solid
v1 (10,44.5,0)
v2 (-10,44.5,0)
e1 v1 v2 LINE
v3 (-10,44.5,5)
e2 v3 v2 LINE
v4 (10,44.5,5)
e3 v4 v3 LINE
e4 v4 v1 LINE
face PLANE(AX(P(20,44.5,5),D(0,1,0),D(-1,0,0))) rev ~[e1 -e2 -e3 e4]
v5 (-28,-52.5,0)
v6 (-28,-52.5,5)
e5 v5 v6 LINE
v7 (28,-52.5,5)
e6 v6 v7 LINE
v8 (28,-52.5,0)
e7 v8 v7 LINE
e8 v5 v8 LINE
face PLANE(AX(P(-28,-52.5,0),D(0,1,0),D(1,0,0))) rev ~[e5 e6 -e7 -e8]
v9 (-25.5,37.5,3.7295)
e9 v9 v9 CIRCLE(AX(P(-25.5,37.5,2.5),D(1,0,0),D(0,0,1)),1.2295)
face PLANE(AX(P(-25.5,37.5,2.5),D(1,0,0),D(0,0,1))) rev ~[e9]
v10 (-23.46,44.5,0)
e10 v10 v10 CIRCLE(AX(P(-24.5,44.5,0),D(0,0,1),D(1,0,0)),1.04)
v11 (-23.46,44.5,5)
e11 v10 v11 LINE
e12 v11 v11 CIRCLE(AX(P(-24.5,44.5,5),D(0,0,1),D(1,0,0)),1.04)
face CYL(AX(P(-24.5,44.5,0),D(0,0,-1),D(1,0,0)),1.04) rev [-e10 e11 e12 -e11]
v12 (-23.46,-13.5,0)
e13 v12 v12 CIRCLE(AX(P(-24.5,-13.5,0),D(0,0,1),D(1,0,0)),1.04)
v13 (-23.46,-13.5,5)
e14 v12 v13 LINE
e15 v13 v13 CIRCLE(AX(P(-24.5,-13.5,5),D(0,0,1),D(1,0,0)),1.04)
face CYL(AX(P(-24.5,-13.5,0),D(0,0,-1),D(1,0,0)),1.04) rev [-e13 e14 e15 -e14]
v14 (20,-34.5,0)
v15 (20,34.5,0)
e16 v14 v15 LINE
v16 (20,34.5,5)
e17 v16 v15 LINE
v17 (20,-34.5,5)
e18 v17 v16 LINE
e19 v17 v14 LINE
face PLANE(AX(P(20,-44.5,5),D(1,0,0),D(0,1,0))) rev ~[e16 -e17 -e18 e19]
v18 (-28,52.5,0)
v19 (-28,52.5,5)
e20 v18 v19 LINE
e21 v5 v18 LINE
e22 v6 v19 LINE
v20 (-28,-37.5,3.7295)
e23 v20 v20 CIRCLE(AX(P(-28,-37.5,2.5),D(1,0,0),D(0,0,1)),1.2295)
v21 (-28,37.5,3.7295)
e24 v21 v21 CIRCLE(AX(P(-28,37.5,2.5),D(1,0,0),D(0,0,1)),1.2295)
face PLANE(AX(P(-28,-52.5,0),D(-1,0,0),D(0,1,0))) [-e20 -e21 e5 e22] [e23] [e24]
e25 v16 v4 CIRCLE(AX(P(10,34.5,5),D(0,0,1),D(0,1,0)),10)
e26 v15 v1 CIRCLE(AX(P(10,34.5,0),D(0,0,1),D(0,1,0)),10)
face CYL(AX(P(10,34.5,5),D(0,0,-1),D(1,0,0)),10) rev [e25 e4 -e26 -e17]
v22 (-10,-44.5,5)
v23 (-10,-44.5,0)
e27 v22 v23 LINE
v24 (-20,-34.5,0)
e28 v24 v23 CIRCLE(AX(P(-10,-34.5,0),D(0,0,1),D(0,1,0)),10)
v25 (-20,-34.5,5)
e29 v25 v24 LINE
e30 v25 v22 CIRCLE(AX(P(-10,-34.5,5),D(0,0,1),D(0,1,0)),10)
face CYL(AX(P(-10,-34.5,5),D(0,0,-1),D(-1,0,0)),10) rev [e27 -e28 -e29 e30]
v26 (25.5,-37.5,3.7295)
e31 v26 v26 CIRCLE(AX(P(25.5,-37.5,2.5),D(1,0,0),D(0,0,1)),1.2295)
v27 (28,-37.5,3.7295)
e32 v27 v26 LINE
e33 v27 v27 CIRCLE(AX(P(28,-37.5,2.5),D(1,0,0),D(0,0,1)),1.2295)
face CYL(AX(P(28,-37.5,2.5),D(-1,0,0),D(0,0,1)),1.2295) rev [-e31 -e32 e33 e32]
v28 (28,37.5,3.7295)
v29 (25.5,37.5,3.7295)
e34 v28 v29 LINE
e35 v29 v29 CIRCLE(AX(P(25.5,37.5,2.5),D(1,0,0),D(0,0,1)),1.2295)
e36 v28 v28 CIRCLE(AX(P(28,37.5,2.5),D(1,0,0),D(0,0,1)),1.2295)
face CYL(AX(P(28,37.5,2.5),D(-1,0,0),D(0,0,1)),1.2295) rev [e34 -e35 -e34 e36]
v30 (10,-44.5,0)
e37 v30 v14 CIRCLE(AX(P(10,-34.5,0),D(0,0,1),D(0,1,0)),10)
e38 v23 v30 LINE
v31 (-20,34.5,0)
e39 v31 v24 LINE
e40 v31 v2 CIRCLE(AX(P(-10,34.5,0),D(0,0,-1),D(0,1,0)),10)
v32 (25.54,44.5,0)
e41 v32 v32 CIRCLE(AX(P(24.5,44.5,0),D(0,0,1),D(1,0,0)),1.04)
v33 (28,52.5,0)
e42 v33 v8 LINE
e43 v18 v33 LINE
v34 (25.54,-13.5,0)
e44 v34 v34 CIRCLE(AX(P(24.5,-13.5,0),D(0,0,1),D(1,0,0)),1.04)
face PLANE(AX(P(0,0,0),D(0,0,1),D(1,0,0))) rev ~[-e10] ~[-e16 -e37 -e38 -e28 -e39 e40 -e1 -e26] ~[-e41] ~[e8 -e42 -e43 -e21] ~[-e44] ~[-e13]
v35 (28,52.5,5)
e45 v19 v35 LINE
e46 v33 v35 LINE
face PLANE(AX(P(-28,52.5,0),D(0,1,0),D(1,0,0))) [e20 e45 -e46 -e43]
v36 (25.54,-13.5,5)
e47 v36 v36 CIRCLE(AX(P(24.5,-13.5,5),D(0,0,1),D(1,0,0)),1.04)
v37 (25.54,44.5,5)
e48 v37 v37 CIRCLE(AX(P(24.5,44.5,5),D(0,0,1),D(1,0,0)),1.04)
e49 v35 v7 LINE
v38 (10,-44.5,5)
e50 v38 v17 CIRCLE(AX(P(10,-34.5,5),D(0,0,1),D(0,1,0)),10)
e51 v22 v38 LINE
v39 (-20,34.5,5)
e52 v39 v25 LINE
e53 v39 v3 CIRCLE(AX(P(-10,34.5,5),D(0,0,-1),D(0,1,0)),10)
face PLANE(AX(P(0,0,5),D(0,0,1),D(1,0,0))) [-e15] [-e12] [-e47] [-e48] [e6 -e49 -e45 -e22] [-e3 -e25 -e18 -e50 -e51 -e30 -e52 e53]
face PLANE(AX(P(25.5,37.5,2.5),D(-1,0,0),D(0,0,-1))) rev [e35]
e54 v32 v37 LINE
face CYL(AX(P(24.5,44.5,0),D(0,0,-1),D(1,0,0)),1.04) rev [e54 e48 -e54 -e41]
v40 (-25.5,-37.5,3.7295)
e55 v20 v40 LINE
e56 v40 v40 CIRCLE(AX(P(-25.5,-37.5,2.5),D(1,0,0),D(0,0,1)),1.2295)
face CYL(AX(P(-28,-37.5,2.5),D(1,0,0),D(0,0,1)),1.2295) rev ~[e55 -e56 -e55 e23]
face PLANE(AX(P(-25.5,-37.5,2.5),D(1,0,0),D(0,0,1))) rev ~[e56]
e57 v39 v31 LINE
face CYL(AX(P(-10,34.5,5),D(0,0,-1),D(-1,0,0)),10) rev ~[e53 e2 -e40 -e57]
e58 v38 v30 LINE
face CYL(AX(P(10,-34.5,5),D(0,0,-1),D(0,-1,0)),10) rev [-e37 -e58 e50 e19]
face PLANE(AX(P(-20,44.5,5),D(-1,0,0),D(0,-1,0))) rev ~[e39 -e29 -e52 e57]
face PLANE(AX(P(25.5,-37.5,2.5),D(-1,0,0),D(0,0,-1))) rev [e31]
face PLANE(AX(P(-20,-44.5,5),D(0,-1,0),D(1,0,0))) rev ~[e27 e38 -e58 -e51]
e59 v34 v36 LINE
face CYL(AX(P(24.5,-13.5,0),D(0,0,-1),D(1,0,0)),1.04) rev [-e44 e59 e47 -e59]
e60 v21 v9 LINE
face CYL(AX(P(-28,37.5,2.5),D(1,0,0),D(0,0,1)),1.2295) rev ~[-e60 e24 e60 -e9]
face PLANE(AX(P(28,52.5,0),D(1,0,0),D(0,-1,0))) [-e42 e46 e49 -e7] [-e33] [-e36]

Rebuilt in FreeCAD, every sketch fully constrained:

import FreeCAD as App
import Part
import Sketcher

V = App.Vector
Q = App.Units.Quantity


def edges_at(feature, points):
    """Names of the edges that pass closest to the given points."""
    edges = feature.Shape.Edges
    near = lambda p: min(range(len(edges)), key=lambda i: edges[i].distToShape(Part.Vertex(*p))[0])
    return sorted({f"Edge{near(p) + 1}" for p in points})

doc = App.newDocument("Part")
body = doc.addObject("PartDesign::Body", "Body")

sketch1 = body.newObject("Sketcher::SketchObject", "Sketch")
sketch1.AttachmentSupport = (doc.getObject("XY_Plane"), [""])
sketch1.MapMode = "FlatFace"
sketch1.addGeometry([
    Part.LineSegment(V(-28, 52.5, 0), V(-28, -52.5, 0)),
    Part.LineSegment(V(-28, -52.5, 0), V(28, -52.5, 0)),
    Part.LineSegment(V(28, -52.5, 0), V(28, 52.5, 0)),
    Part.LineSegment(V(28, 52.5, 0), V(-28, 52.5, 0)),
    Part.Circle(V(-24.5, -13.5, 0), V(0, 0, 1), 1),
    Part.Circle(V(24.5, -13.5, 0), V(0, 0, 1), 1),
    Part.Circle(V(-24.5, 44.5, 0), V(0, 0, 1), 1),
    Part.Circle(V(24.5, 44.5, 0), V(0, 0, 1), 1),
], False)
sketch1.addConstraint([
    Sketcher.Constraint("Coincident", 0, 2, 1, 1),
    Sketcher.Constraint("Coincident", 1, 2, 2, 1),
    Sketcher.Constraint("Coincident", 2, 2, 3, 1),
    Sketcher.Constraint("Coincident", 3, 2, 0, 1),
    Sketcher.Constraint("Vertical", 0),
    Sketcher.Constraint("Horizontal", 1),
    Sketcher.Constraint("Vertical", 2),
    Sketcher.Constraint("Horizontal", 3),
    Sketcher.Constraint("Equal", 4, 5),
    Sketcher.Constraint("Equal", 5, 6),
    Sketcher.Constraint("Equal", 6, 7),
    Sketcher.Constraint("Symmetric", 0, 2, 2, 2, -1, 1),
    Sketcher.Constraint("Symmetric", 4, 3, 5, 3, -2),
    Sketcher.Constraint("Symmetric", 6, 3, 7, 3, -2),
    Sketcher.Constraint("Vertical", 4, 3, 6, 3),
    Sketcher.Constraint("Diameter", 4, Q("2.08 mm")),
    Sketcher.Constraint("DistanceX", 1, 1, 1, 2, Q("56 mm")),
    Sketcher.Constraint("DistanceY", 0, 2, 0, 1, Q("105 mm")),
    Sketcher.Constraint("DistanceX", 4, 3, 5, 3, Q("49 mm")),
    Sketcher.Constraint("DistanceY", 4, 3, 6, 3, Q("58 mm")),
    Sketcher.Constraint("DistanceY", 7, 3, 2, 2, Q("8 mm")),
])
pad1 = body.newObject("PartDesign::Pad", "Pad")
pad1.Profile = sketch1
pad1.Length = 5

sketch2 = body.newObject("Sketcher::SketchObject", "Sketch001")
sketch2.AttachmentSupport = (doc.getObject("XY_Plane"), [""])
sketch2.MapMode = "FlatFace"
sketch2.AttachmentOffset = App.Placement(V(0, 0, 5), App.Rotation())
sketch2.addGeometry([
    Part.LineSegment(V(-20, 44, 0), V(-20, -44, 0)),
    Part.LineSegment(V(-20, -44, 0), V(20, -44, 0)),
    Part.LineSegment(V(20, -44, 0), V(20, 44, 0)),
    Part.LineSegment(V(20, 44, 0), V(-20, 44, 0)),
], False)
sketch2.addConstraint([
    Sketcher.Constraint("Coincident", 0, 2, 1, 1),
    Sketcher.Constraint("Coincident", 1, 2, 2, 1),
    Sketcher.Constraint("Coincident", 2, 2, 3, 1),
    Sketcher.Constraint("Coincident", 3, 2, 0, 1),
    Sketcher.Constraint("Vertical", 0),
    Sketcher.Constraint("Horizontal", 1),
    Sketcher.Constraint("Vertical", 2),
    Sketcher.Constraint("Horizontal", 3),
    Sketcher.Constraint("Symmetric", 0, 2, 2, 2, -1, 1),
    Sketcher.Constraint("DistanceX", 1, 1, 1, 2, Q("40 mm")),
    Sketcher.Constraint("DistanceY", 0, 2, 0, 1, Q("89 mm")),
])
pocket1 = body.newObject("PartDesign::Pocket", "Pocket")
pocket1.Profile = sketch2
pocket1.Length = 10
doc.recompute()

fillet = body.newObject("PartDesign::Fillet", "Fillet")
fillet.Base = (pocket1, edges_at(pocket1, [
    (-20, 44.5, 2.5),
    (20, 44.5, 2.5),
    (20, -44.5, 2.5),
    (-20, -44.5, 2.5),
]))
fillet.Radius = 10

sketch3 = body.newObject("Sketcher::SketchObject", "Sketch002")
sketch3.AttachmentSupport = (doc.getObject("YZ_Plane"), [""])
sketch3.MapMode = "FlatFace"
sketch3.AttachmentOffset = App.Placement(V(0, 0, -28), App.Rotation())
sketch3.addGeometry([
    Part.Circle(V(37.5, 2.5, 0), V(0, 0, 1), 1.2),
    Part.Circle(V(-37.5, 2.5, 0), V(0, 0, 1), 1.2),
], False)
sketch3.addConstraint([
    Sketcher.Constraint("Equal", 0, 1),
    Sketcher.Constraint("Symmetric", 0, 3, 1, 3, -2),
    Sketcher.Constraint("Diameter", 0, Q("2.459 mm")),
    Sketcher.Constraint("DistanceX", 1, 3, 0, 3, Q("75 mm")),
    Sketcher.Constraint("DistanceY", -1, 1, 0, 3, Q("2.5 mm")),
])
doc.recompute()
hole = body.newObject("PartDesign::Hole", "Hole")
hole.Profile = sketch3
hole.ThreadType = "None"
hole.Diameter = 2.459
hole.DepthType = "Dimension"
hole.Depth = 2.5
hole.DrillPoint = "Flat"
hole.Reversed = True
doc.recompute()

mirrored = body.newObject("PartDesign::Mirrored", "Mirrored")
mirrored.Originals = [hole]
mirrored.MirrorPlane = (doc.getObject("YZ_Plane"), [""])
body.Tip = mirrored

doc.recompute()
